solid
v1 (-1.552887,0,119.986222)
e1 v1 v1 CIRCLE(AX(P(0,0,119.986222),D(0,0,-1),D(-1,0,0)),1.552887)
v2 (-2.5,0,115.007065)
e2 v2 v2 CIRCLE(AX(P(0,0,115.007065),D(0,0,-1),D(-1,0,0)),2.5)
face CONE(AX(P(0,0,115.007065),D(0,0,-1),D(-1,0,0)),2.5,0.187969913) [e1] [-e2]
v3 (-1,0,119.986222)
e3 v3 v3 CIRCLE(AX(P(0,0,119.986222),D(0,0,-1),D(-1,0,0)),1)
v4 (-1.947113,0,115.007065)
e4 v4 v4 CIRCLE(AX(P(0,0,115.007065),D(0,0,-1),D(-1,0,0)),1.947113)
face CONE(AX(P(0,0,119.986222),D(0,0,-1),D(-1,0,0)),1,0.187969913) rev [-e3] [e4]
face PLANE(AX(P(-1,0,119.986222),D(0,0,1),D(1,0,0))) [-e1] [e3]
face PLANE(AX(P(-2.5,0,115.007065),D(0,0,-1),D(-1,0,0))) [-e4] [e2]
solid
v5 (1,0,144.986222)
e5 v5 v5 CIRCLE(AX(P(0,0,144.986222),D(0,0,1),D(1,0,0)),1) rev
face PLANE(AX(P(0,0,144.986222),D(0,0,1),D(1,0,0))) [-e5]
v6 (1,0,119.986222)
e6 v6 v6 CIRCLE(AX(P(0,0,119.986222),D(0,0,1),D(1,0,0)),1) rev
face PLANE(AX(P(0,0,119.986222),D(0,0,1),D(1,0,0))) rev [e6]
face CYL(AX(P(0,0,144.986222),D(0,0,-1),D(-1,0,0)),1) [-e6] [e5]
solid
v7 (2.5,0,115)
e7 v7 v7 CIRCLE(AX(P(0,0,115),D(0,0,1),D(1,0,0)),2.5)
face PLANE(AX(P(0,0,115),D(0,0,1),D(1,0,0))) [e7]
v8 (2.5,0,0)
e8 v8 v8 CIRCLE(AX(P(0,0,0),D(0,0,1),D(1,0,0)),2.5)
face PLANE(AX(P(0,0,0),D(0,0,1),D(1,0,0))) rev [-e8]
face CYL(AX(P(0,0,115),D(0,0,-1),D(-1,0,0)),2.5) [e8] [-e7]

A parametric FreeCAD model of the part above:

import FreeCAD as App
import Part
import Sketcher
from FreeCAD import Vector
Q = App.Units.Quantity

doc = App.newDocument("Part")
body = doc.addObject("PartDesign::Body", "Body")

sketch1 = body.newObject("Sketcher::SketchObject", "Sketch")
sketch1.AttachmentSupport = (doc.getObject("XY_Plane"), [""])
sketch1.MapMode = "FlatFace"
sketch1.addGeometry(Part.Circle(Vector(0, 0, 0), Vector(0, 0, 1), 2.5), False)
sketch1.addConstraint([
    Sketcher.Constraint("Coincident", 0, 3, -1, 1),
    Sketcher.Constraint("Diameter", 0, Q("5 mm")),
])
pad1 = body.newObject("PartDesign::Pad", "Pad")
pad1.Profile = sketch1
pad1.Length = 115
body2 = doc.addObject("PartDesign::Body", "Body001")

sketch2 = body2.newObject("Sketcher::SketchObject", "Sketch001")
sketch2.AttachmentSupport = (doc.getObject("XZ_Plane001"), [""])
sketch2.MapMode = "FlatFace"
sketch2.addGeometry([
    Part.LineSegment(Vector(-1, 119.986222, 0), Vector(-1.947113, 115.007065, 0)),
    Part.LineSegment(Vector(-1.947113, 115.007065, 0), Vector(-2.5, 115.007065, 0)),
    Part.LineSegment(Vector(-2.5, 115.007065, 0), Vector(-1.552887, 119.986222, 0)),
    Part.LineSegment(Vector(-1.552887, 119.986222, 0), Vector(-1, 119.986222, 0)),
], False)
sketch2.addConstraint([
    Sketcher.Constraint("Coincident", 0, 2, 1, 1),
    Sketcher.Constraint("Coincident", 1, 2, 2, 1),
    Sketcher.Constraint("Coincident", 2, 2, 3, 1),
    Sketcher.Constraint("Coincident", 3, 2, 0, 1),
    Sketcher.Constraint("Horizontal", 1),
    Sketcher.Constraint("Horizontal", 3),
    Sketcher.Constraint("Parallel", 0, 2),
    Sketcher.Constraint("DistanceX", 3, 2, -1, 1, Q("1 mm")),
    Sketcher.Constraint("DistanceX", 1, 2, -1, 1, Q("2.5 mm")),
    Sketcher.Constraint("DistanceX", 1, 2, 1, 1, Q("0.552887 mm")),
    Sketcher.Constraint("DistanceY", -1, 1, 2, 2, Q("119.986222 mm")),
    Sketcher.Constraint("Distance", 0, Q("5.068434 mm")),
])
revolution = body2.newObject("PartDesign::Revolution", "Revolution")
revolution.Profile = sketch2
revolution.ReferenceAxis = (sketch2, ["V_Axis"])
revolution.Angle = 360
body3 = doc.addObject("PartDesign::Body", "Body002")

sketch3 = body3.newObject("Sketcher::SketchObject", "Sketch002")
sketch3.AttachmentSupport = (doc.getObject("XY_Plane002"), [""])
sketch3.MapMode = "FlatFace"
sketch3.AttachmentOffset = App.Placement(Vector(0, 0, 119.986222), App.Rotation())
sketch3.addGeometry(Part.Circle(Vector(0, 0, 0), Vector(0, 0, 1), 1), False)
sketch3.addConstraint([
    Sketcher.Constraint("Coincident", 0, 3, -1, 1),
    Sketcher.Constraint("Diameter", 0, Q("2 mm")),
])
pad2 = body3.newObject("PartDesign::Pad", "Pad001")
pad2.Profile = sketch3
pad2.Length = 25

doc.recompute()
